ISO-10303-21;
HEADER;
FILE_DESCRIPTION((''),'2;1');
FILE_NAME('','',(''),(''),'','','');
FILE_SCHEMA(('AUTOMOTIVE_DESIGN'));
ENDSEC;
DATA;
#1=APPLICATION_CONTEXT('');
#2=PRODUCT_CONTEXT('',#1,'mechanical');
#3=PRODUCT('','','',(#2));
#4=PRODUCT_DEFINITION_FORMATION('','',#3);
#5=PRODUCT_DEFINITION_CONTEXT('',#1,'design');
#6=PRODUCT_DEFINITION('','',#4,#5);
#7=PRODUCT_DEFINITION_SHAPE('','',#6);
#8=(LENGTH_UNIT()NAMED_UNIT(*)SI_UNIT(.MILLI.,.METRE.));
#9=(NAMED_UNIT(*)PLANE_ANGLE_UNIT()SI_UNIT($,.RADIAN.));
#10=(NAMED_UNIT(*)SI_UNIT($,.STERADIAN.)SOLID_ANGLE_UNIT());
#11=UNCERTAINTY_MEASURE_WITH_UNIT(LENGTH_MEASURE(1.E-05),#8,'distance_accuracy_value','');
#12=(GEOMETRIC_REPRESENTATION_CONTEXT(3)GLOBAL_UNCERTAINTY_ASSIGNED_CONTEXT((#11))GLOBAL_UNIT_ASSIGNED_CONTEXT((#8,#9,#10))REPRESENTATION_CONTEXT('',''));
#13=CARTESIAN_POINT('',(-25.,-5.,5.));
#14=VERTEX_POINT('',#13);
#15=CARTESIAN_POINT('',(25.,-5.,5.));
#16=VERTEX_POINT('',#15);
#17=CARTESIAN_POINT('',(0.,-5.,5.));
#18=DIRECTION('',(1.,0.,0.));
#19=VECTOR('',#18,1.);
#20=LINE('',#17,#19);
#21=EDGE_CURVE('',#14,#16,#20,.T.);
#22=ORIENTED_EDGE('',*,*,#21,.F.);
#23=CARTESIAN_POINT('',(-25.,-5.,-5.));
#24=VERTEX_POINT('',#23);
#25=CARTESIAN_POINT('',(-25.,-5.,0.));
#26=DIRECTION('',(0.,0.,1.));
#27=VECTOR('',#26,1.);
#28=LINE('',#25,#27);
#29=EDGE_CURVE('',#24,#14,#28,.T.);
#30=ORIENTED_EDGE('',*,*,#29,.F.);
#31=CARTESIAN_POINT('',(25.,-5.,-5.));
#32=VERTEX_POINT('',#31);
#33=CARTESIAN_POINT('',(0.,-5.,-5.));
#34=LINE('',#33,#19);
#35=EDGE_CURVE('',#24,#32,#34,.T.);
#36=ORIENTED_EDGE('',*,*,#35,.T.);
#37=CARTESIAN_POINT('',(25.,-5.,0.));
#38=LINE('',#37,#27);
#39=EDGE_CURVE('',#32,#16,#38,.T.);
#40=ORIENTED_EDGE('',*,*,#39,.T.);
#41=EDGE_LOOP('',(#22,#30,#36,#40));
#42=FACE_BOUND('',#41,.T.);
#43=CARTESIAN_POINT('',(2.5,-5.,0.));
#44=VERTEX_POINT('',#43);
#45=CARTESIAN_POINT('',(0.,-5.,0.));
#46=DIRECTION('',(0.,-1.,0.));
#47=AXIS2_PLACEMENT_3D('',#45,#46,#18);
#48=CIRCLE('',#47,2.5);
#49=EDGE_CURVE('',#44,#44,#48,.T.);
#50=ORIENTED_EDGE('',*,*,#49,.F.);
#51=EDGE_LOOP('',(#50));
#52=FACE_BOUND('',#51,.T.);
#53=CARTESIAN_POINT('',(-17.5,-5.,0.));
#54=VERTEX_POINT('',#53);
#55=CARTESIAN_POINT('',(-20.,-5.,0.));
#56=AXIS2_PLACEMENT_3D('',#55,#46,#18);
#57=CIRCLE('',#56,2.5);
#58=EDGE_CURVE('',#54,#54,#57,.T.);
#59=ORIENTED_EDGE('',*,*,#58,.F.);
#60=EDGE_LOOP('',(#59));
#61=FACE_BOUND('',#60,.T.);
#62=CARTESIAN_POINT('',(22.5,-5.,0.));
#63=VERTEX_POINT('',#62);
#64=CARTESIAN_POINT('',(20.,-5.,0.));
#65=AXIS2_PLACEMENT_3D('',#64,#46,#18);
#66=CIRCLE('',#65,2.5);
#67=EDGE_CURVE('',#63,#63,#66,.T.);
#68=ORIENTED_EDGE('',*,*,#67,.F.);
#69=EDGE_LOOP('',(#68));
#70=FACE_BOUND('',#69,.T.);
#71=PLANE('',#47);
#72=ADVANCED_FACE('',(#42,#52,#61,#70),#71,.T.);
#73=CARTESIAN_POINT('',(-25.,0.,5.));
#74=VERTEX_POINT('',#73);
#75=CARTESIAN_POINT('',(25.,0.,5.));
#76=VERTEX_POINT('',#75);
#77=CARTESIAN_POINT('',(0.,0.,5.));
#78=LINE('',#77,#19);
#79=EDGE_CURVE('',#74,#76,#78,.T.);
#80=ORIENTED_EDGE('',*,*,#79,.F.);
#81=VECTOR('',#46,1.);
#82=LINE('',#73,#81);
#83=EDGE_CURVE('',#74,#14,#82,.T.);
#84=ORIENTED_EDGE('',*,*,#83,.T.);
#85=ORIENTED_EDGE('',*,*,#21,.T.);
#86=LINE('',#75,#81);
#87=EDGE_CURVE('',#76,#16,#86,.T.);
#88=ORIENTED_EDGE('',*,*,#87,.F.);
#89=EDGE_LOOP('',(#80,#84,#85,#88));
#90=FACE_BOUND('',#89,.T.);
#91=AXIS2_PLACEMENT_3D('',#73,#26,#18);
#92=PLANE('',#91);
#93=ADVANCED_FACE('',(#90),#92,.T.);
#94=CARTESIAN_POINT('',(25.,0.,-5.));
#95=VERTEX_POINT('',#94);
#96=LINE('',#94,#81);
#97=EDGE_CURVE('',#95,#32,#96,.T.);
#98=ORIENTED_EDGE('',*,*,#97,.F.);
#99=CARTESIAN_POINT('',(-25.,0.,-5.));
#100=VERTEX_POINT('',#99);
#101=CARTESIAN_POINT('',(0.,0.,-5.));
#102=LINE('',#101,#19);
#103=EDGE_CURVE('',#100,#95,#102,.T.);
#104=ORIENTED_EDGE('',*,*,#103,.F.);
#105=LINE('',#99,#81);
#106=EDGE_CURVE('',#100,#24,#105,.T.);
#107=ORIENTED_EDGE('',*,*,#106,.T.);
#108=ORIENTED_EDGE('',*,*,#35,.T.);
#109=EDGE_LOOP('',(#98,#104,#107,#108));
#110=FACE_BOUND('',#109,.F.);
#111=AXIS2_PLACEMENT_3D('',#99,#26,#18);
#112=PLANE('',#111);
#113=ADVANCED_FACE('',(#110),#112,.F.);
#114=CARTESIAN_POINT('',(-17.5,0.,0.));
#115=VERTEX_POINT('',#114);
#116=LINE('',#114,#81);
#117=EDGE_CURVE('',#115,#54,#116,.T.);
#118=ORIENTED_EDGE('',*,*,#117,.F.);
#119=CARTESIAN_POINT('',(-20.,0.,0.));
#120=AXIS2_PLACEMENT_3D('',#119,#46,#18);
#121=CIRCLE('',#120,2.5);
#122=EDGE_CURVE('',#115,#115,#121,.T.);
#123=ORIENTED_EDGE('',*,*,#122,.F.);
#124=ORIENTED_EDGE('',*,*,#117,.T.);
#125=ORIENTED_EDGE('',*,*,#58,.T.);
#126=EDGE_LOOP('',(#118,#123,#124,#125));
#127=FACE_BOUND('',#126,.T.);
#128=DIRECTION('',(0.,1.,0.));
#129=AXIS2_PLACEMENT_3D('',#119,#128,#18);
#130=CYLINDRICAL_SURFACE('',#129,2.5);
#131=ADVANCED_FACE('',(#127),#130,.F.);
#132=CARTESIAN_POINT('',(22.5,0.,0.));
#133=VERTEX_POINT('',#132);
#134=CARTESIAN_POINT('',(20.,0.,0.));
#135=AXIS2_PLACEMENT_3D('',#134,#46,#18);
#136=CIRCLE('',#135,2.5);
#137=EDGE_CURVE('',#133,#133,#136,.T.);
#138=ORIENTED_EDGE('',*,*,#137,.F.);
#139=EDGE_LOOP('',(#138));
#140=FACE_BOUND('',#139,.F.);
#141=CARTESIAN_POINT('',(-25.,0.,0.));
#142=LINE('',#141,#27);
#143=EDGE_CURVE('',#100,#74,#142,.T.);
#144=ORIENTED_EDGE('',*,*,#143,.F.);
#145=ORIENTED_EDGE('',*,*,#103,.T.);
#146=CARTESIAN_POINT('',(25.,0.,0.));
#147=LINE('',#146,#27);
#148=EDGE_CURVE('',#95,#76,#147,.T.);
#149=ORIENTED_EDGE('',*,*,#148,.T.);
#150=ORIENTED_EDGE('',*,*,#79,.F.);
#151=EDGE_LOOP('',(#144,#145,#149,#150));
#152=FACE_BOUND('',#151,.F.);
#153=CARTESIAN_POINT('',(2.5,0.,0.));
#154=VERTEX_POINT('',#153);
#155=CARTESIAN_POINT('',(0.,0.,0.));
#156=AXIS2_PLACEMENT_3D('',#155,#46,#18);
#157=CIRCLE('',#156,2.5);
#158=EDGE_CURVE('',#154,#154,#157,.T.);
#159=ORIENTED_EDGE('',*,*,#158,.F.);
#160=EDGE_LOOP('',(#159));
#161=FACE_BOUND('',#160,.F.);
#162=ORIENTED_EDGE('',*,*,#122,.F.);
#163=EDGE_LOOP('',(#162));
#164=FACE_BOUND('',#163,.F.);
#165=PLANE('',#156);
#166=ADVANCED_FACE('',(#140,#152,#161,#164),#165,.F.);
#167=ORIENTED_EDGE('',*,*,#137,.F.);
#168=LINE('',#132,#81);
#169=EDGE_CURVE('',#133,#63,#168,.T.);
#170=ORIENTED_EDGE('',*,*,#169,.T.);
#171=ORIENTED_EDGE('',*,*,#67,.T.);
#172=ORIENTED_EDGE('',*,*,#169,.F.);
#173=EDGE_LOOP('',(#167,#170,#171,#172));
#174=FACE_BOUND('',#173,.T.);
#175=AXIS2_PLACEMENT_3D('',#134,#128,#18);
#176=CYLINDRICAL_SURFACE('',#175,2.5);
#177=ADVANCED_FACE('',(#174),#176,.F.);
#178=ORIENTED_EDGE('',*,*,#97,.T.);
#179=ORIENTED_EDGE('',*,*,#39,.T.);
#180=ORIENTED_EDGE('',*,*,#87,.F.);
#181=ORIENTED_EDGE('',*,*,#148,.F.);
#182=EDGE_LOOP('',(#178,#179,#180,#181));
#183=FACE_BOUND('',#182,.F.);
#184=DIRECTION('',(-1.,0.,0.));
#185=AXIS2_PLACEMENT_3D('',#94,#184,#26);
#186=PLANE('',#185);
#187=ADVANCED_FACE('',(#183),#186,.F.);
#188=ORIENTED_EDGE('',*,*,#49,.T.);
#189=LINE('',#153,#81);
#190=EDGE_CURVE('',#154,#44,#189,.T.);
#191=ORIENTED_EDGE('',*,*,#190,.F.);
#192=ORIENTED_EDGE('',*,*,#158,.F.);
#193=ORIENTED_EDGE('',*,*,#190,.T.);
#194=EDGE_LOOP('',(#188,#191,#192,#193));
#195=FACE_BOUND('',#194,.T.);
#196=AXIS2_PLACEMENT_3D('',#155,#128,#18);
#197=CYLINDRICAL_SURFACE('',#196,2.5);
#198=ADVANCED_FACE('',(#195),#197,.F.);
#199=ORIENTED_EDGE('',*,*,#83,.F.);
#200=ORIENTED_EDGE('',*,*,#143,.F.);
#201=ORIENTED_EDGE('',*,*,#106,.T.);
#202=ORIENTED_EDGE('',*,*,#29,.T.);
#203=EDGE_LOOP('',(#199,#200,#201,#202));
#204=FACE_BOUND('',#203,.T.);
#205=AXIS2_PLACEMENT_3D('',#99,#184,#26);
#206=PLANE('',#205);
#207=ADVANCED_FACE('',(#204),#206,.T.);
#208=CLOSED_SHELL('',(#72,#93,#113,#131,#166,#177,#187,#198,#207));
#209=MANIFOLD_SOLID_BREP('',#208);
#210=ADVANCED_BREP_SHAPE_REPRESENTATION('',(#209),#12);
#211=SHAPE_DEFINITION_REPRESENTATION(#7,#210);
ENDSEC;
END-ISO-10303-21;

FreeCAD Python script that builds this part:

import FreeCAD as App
import Part
import Sketcher

V = App.Vector
Q = App.Units.Quantity


def add_polygon(sketch, points):
    """Adds a closed chain of lines whose ends are joined by coincident constraints."""
    first, n = sketch.GeometryCount, len(points)
    for a, b in zip(points, points[1:] + points[:1]):
        sketch.addGeometry(Part.LineSegment(App.Vector(*a, 0), App.Vector(*b, 0)), False)
    for i in range(n):
        sketch.addConstraint(Sketcher.Constraint("Coincident", first + i, 2, first + (i + 1) % n, 1))

doc = App.newDocument("Part")
body = doc.addObject("PartDesign::Body", "Body")

sketch1 = body.newObject("Sketcher::SketchObject", "Sketch")
sketch1.AttachmentSupport = (doc.getObject("XZ_Plane"), [""])
sketch1.MapMode = "FlatFace"
add_polygon(sketch1, [(-25, 5), (-25, -5), (25, -5), (25, 5)])
sketch1.addGeometry(Part.Circle(V(-20, 0, 0), V(0, 0, 1), 2.5), False)
sketch1.addGeometry(Part.Circle(V(0, 0, 0), V(0, 0, 1), 2.5), False)
sketch1.addGeometry(Part.Circle(V(20, 0, 0), V(0, 0, 1), 2.5), False)
sketch1.addConstraint([
    Sketcher.Constraint("Vertical", 0),
    Sketcher.Constraint("Horizontal", 1),
    Sketcher.Constraint("Vertical", 2),
    Sketcher.Constraint("Horizontal", 3),
    Sketcher.Constraint("Coincident", 5, 3, -1, 1),
    Sketcher.Constraint("Equal", 4, 5),
    Sketcher.Constraint("Equal", 5, 6),
    Sketcher.Constraint("Symmetric", 4, 3, 6, 3, -1, 1),
    Sketcher.Constraint("Symmetric", 0, 2, 2, 2, -1, 1),
    Sketcher.Constraint("PointOnObject", 4, 3, -1),
    Sketcher.Constraint("Diameter", 4, Q("5 mm")),
    Sketcher.Constraint("DistanceX", 1, 1, 1, 2, Q("50 mm")),
    Sketcher.Constraint("DistanceY", 0, 2, 0, 1, Q("10 mm")),
    Sketcher.Constraint("DistanceX", 4, 3, -1, 1, Q("20 mm")),
])
pad1 = body.newObject("PartDesign::Pad", "Pad")
pad1.Profile = sketch1
pad1.Length = 5

doc.recompute()
